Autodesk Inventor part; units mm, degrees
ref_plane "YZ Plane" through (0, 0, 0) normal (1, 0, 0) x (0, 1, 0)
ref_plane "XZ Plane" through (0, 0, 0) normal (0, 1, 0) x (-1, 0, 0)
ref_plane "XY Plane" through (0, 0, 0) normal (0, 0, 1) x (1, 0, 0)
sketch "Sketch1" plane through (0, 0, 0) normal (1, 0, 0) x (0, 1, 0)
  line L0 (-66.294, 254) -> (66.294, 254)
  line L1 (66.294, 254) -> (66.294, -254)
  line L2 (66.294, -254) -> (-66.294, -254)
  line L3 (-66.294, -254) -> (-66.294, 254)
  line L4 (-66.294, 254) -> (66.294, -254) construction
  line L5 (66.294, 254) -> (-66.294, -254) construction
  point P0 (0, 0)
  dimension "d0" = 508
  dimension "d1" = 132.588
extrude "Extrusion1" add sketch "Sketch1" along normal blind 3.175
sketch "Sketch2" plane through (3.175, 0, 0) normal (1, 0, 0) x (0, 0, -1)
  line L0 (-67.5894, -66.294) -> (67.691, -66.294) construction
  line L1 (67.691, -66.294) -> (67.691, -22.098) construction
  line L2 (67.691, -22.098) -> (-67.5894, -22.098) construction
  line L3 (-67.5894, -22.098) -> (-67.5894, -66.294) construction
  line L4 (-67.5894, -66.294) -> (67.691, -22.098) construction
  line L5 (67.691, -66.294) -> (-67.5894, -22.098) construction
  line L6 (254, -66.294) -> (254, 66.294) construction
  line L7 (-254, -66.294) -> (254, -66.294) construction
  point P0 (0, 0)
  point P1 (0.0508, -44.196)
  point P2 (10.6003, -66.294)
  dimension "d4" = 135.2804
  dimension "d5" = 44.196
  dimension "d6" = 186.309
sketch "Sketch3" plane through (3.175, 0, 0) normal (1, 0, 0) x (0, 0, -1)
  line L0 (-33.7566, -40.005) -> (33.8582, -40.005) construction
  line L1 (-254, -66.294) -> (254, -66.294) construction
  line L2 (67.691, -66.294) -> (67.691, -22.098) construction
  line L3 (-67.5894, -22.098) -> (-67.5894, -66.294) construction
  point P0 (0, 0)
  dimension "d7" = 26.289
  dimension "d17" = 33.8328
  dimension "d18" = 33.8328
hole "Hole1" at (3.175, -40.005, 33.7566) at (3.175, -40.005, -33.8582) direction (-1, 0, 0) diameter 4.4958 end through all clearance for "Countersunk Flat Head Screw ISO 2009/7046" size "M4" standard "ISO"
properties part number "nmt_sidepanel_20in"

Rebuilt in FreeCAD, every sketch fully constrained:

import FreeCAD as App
import Part
import Sketcher
Q = App.Units.Quantity

doc = App.newDocument("Part")
body = doc.addObject("PartDesign::Body", "Body")

# Sketch on YZ plane
sketch1 = doc.addObject("Sketcher::SketchObject", "Sketch")
body.addObject(sketch1)
sketch1.AttachmentSupport = (doc.YZ_Plane, [""])
sketch1.MapMode = "FlatFace"
sketch1.addGeometry([
    Part.LineSegment(App.Vector(66, 254, 0), App.Vector(-66, 254, 0)),
    Part.LineSegment(App.Vector(-66, 254, 0), App.Vector(-66, -254, 0)),
    Part.LineSegment(App.Vector(-66, -254, 0), App.Vector(66, -254, 0)),
    Part.LineSegment(App.Vector(66, -254, 0), App.Vector(66, 254, 0)),
], False)
sketch1.addConstraint([
    Sketcher.Constraint("Coincident", 0, 2, 1, 1),
    Sketcher.Constraint("Coincident", 1, 2, 2, 1),
    Sketcher.Constraint("Coincident", 2, 2, 3, 1),
    Sketcher.Constraint("Coincident", 3, 2, 0, 1),
    Sketcher.Constraint("Horizontal", 0),
    Sketcher.Constraint("Vertical", 1),
    Sketcher.Constraint("Horizontal", 2),
    Sketcher.Constraint("Vertical", 3),
    Sketcher.Constraint("Symmetric", 0, 2, 2, 2, -1, 1),
    Sketcher.Constraint("DistanceY", 1, 2, 1, 1, Q("20 in")),
    Sketcher.Constraint("DistanceX", 0, 2, 0, 1, Q("5.22 in")),
])
pad1 = doc.addObject("PartDesign::Pad", "Pad")
body.addObject(pad1)
pad1.Profile = sketch1
pad1.Length = Q("0.125 in")

# Sketch on YZ plane
sketch2 = doc.addObject("Sketcher::SketchObject", "Sketch001")
body.addObject(sketch2)
sketch2.AttachmentSupport = (doc.YZ_Plane, [""])
sketch2.MapMode = "FlatFace"
sketch2.AttachmentOffset = App.Placement(App.Vector(0, 0, 0.125 * 25.4), App.Rotation())
sketch2.addGeometry([
    Part.Circle(App.Vector(-40, 33.8, 0), App.Vector(0, 0, 1), 2.2),
    Part.Circle(App.Vector(-40, -33.9, 0), App.Vector(0, 0, 1), 2.2),
], False)
sketch2.addConstraint([
    Sketcher.Constraint("Equal", 0, 1),
    Sketcher.Constraint("Vertical", 0, 3, 1, 3),
    Sketcher.Constraint("Diameter", 0, Q("0.177 in")),
    Sketcher.Constraint("DistanceX", 0, 3, -1, 1, Q("1.575 in")),
    Sketcher.Constraint("DistanceY", -1, 1, 0, 3, Q("1.329 in")),
    Sketcher.Constraint("DistanceY", 1, 3, -1, 1, Q("1.333 in")),
])
doc.recompute()
hole = doc.addObject("PartDesign::Hole", "Hole")
body.addObject(hole)
hole.Profile = sketch2
hole.ThreadType = "None"
hole.Diameter = Q("0.177 in")
hole.DepthType = "ThroughAll"

doc.recompute()
